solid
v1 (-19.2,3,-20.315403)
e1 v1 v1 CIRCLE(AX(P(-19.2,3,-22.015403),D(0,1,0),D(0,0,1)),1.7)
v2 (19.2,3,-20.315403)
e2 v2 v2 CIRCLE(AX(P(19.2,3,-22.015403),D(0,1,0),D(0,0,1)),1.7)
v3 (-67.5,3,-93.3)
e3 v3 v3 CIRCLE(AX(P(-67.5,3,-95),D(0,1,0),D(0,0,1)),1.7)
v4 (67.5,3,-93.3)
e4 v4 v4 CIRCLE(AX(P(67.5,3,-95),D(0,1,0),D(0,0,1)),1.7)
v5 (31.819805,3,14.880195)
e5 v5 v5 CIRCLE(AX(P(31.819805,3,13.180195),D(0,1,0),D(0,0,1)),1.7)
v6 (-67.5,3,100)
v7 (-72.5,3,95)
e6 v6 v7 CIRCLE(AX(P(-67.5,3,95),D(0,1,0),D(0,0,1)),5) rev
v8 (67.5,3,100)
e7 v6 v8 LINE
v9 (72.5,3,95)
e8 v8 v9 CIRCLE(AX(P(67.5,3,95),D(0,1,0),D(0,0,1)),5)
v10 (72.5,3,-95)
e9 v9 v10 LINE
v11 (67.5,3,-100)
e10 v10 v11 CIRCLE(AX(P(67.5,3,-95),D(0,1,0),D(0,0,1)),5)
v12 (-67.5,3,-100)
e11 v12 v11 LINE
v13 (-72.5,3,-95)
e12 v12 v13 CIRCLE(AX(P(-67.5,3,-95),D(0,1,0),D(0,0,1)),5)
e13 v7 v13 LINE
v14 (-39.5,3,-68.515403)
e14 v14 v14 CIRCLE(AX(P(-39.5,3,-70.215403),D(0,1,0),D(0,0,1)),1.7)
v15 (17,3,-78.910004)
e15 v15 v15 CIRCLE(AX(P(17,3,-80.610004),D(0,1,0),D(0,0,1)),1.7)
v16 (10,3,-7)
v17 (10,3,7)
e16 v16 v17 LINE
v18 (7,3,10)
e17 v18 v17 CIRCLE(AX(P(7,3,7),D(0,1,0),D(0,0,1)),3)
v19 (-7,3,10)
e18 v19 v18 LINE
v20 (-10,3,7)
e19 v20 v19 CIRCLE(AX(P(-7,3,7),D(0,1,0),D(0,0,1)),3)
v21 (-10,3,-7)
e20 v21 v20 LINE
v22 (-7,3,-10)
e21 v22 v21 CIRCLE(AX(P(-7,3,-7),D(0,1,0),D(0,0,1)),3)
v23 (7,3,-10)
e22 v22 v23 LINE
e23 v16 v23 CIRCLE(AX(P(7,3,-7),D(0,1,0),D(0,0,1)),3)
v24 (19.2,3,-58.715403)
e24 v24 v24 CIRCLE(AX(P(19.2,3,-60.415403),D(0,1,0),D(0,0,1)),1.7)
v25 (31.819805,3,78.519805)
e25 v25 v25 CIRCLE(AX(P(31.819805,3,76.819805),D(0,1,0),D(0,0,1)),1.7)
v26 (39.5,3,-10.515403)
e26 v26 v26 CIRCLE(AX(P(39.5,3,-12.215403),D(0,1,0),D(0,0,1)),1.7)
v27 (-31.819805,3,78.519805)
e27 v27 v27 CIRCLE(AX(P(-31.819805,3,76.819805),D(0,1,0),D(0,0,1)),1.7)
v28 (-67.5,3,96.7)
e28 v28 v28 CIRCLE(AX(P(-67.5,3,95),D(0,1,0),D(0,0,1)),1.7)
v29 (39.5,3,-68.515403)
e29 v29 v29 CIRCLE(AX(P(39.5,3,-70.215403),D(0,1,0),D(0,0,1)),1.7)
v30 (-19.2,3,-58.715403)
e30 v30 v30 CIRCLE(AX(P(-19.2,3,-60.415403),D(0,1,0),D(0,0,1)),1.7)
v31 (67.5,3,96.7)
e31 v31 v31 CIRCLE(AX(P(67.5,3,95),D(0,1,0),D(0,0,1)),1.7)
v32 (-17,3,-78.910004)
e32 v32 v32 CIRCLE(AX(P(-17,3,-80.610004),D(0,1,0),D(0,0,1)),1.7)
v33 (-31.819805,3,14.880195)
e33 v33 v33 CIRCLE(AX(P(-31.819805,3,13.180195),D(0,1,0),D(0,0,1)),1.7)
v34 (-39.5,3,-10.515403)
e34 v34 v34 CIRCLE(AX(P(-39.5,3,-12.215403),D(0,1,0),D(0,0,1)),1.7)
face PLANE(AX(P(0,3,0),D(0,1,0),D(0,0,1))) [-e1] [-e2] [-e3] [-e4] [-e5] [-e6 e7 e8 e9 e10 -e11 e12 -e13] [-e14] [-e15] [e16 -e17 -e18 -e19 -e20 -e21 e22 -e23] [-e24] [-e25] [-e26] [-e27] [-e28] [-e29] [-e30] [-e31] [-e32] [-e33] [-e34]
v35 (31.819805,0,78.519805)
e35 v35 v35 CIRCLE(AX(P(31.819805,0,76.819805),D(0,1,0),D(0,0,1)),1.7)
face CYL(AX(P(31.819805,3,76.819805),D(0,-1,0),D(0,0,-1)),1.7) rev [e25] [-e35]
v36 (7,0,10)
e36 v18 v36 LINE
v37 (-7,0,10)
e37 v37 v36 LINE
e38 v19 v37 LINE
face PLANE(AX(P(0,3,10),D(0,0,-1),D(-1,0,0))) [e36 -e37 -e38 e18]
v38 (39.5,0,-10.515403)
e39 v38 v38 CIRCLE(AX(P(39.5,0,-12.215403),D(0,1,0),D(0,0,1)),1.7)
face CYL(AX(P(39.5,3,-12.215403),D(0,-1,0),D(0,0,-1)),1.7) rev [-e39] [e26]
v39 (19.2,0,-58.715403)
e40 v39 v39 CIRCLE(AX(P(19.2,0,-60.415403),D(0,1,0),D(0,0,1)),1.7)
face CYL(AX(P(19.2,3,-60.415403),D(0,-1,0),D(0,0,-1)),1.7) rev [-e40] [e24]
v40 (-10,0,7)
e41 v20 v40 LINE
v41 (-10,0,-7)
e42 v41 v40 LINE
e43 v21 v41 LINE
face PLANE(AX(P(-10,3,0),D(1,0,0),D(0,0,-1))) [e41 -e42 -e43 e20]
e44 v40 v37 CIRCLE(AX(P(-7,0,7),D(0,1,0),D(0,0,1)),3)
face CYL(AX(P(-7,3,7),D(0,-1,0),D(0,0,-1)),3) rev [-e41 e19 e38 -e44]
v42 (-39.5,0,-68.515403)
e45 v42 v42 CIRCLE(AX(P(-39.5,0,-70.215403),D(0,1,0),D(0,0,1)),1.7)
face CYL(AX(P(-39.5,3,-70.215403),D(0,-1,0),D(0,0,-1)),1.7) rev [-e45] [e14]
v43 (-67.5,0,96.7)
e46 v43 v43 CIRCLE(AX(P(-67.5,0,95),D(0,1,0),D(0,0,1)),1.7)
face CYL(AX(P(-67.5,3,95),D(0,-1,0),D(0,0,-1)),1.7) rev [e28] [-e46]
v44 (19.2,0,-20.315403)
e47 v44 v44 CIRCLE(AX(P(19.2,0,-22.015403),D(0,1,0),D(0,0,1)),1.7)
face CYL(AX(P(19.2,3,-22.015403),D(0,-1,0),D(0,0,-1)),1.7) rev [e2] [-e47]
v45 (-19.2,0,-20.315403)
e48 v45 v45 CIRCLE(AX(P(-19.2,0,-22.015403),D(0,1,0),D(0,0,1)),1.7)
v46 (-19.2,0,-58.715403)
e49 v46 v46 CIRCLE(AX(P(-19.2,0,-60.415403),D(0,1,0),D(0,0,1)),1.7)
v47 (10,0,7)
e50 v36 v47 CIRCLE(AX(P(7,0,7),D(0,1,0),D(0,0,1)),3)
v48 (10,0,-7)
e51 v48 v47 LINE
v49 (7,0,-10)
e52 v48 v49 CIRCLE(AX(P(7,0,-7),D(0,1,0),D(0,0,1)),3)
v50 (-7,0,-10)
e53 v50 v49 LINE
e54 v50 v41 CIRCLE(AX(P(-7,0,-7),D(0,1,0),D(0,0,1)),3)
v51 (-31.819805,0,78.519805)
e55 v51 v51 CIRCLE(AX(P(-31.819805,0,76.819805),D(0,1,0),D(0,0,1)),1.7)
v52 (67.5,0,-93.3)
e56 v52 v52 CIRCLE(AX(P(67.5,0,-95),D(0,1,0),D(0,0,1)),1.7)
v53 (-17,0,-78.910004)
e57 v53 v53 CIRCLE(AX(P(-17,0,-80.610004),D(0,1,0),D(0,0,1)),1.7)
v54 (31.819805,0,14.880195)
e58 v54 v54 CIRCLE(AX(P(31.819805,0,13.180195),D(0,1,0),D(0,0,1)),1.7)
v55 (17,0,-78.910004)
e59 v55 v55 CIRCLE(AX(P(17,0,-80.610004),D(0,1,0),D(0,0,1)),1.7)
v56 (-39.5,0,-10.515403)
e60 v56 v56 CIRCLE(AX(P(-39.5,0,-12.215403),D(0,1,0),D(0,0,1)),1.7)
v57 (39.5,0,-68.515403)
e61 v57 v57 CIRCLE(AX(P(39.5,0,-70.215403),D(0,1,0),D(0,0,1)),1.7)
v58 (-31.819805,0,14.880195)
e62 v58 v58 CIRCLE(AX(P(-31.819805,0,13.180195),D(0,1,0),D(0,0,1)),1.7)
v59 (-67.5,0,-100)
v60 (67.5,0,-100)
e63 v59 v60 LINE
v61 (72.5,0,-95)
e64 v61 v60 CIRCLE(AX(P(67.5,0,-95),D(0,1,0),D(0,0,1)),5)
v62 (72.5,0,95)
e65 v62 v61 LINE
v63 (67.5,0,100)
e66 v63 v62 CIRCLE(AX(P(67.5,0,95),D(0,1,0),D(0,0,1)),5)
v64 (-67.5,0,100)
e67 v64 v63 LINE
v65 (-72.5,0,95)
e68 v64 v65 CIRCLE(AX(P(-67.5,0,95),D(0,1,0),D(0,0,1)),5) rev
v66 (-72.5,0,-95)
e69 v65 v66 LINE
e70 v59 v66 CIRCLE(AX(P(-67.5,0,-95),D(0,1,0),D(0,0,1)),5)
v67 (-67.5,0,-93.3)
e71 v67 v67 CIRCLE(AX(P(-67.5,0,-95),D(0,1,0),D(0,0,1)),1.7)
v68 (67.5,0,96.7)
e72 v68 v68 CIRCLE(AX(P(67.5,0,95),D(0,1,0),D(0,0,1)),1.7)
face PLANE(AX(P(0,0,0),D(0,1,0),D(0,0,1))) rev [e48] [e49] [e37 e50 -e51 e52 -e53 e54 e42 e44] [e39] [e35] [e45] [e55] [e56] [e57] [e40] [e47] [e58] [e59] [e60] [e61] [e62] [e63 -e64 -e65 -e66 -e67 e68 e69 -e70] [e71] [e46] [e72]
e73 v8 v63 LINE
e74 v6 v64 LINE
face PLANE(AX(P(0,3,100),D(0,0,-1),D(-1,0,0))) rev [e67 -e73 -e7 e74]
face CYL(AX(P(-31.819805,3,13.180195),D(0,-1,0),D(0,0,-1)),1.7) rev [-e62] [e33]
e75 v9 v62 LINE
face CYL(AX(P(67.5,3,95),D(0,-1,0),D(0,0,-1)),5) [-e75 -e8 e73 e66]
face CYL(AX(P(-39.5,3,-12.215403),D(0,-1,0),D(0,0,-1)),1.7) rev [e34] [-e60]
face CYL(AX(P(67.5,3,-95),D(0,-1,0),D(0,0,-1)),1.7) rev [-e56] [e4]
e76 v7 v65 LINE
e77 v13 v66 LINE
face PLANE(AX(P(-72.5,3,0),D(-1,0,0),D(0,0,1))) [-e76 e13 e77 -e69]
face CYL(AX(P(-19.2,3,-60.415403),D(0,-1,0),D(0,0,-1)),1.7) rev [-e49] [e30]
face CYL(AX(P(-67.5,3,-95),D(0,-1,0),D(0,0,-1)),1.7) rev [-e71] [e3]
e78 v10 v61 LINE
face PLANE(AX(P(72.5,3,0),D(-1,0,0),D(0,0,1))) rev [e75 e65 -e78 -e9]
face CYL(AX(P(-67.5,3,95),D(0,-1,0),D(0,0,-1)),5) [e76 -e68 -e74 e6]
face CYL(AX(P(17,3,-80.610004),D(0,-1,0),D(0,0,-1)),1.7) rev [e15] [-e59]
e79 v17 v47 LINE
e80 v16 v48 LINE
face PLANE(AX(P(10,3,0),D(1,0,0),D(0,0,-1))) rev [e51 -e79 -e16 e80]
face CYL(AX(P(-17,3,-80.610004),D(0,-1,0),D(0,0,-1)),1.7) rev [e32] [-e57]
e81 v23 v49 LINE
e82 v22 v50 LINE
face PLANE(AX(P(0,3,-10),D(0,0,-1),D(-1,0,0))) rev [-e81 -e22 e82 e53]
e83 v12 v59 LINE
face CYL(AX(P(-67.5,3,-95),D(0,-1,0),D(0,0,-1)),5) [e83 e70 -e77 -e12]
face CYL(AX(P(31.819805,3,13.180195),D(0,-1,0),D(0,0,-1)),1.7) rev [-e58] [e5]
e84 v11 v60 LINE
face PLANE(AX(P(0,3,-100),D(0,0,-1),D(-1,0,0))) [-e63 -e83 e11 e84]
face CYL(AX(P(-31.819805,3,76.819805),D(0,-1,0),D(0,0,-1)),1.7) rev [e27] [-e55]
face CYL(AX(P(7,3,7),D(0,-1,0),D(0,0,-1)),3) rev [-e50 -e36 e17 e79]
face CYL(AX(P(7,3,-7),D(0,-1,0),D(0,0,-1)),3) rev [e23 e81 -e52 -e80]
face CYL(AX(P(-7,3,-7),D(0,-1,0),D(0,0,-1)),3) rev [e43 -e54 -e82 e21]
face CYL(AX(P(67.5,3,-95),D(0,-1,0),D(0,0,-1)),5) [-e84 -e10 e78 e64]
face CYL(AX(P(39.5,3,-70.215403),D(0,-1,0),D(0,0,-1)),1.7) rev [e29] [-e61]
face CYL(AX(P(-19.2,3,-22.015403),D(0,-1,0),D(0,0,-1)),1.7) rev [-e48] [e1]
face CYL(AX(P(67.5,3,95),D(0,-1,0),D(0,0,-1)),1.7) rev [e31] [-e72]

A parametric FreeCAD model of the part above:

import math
import FreeCAD as App
import Part
import Sketcher

V = App.Vector
Q = App.Units.Quantity

doc = App.newDocument("Part")
params = doc.addObject("Spreadsheet::Sheet", "Params")
for row, (alias, value) in enumerate([
    ("sketch1_radius", "5 mm"),
    ("sketch1_radius2", "3 mm"),
    ("sketch1_diameter", "3.4 mm"),
    ("sketch1_width", "135 mm"),
    ("sketch1_width2", "14 mm"),
    ("pad1_length", "3 mm"),
], start=1):
    params.set(f"A{row}", alias)
    params.set(f"B{row}", "=" + value)
    params.setAlias(f"B{row}", alias)

body = doc.addObject("PartDesign::Body", "Body")

# Sketch on XZ plane
sketch1 = body.newObject("Sketcher::SketchObject", "Sketch")
sketch1.AttachmentSupport = (doc.getObject("XZ_Plane"), [""])
sketch1.MapMode = "FlatFace"
sketch1.addGeometry(Part.LineSegment(V(-67.5, 100, 0), V(67.5, 100, 0)), False)
sketch1.addGeometry(Part.ArcOfCircle(Part.Circle(V(67.5, 95, 0), V(0, 0, 1), 5), math.radians(0), math.radians(90)), False)
sketch1.addGeometry(Part.LineSegment(V(72.5, 95, 0), V(72.5, -95, 0)), False)
sketch1.addGeometry(Part.ArcOfCircle(Part.Circle(V(67.5, -95, 0), V(0, 0, 1), 5), math.radians(-90), math.radians(0)), False)
sketch1.addGeometry(Part.LineSegment(V(67.5, -100, 0), V(-67.5, -100, 0)), False)
sketch1.addGeometry(Part.ArcOfCircle(Part.Circle(V(-67.5, -95, 0), V(0, 0, 1), 5), math.radians(180), math.radians(270)), False)
sketch1.addGeometry(Part.LineSegment(V(-72.5, -95, 0), V(-72.5, 95, 0)), False)
sketch1.addGeometry(Part.ArcOfCircle(Part.Circle(V(-67.5, 95, 0), V(0, 0, 1), 5), math.radians(90), math.radians(180)), False)
sketch1.addGeometry(Part.Circle(V(-67.5, 95, 0), V(0, 0, 1), 1.7), False)
sketch1.addGeometry(Part.Circle(V(-31.8, 76.8, 0), V(0, 0, 1), 1.7), False)
sketch1.addGeometry(Part.Circle(V(-31.8, 13.2, 0), V(0, 0, 1), 1.7), False)
sketch1.addGeometry(Part.Circle(V(31.8, 76.8, 0), V(0, 0, 1), 1.7), False)
sketch1.addGeometry(Part.Circle(V(67.5, 95, 0), V(0, 0, 1), 1.7), False)
sketch1.addGeometry(Part.Circle(V(31.8, 13.2, 0), V(0, 0, 1), 1.7), False)
sketch1.addGeometry(Part.Circle(V(-39.5, -12.2, 0), V(0, 0, 1), 1.7), False)
sketch1.addGeometry(Part.Circle(V(-19.2, -22, 0), V(0, 0, 1), 1.7), False)
sketch1.addGeometry(Part.Circle(V(-39.5, -70.2, 0), V(0, 0, 1), 1.7), False)
sketch1.addGeometry(Part.Circle(V(-67.5, -95, 0), V(0, 0, 1), 1.7), False)
sketch1.addGeometry(Part.Circle(V(-19.2, -60.4, 0), V(0, 0, 1), 1.7), False)
sketch1.addGeometry(Part.Circle(V(-17, -80.6, 0), V(0, 0, 1), 1.7), False)
sketch1.addGeometry(Part.ArcOfCircle(Part.Circle(V(-7, -7, 0), V(0, 0, 1), 3), math.radians(180), math.radians(270)), False)
sketch1.addGeometry(Part.LineSegment(V(-7, -10, 0), V(7, -10, 0)), False)
sketch1.addGeometry(Part.ArcOfCircle(Part.Circle(V(7, -7, 0), V(0, 0, 1), 3), math.radians(-90), math.radians(0)), False)
sketch1.addGeometry(Part.LineSegment(V(10, -7, 0), V(10, 7, 0)), False)
sketch1.addGeometry(Part.ArcOfCircle(Part.Circle(V(7, 7, 0), V(0, 0, 1), 3), math.radians(0), math.radians(90)), False)
sketch1.addGeometry(Part.LineSegment(V(7, 10, 0), V(-7, 10, 0)), False)
sketch1.addGeometry(Part.ArcOfCircle(Part.Circle(V(-7, 7, 0), V(0, 0, 1), 3), math.radians(90), math.radians(180)), False)
sketch1.addGeometry(Part.LineSegment(V(-10, 7, 0), V(-10, -7, 0)), False)
sketch1.addGeometry(Part.Circle(V(19.2, -22, 0), V(0, 0, 1), 1.7), False)
sketch1.addGeometry(Part.Circle(V(39.5, -12.2, 0), V(0, 0, 1), 1.7), False)
sketch1.addGeometry(Part.Circle(V(19.2, -60.4, 0), V(0, 0, 1), 1.7), False)
sketch1.addGeometry(Part.Circle(V(17, -80.6, 0), V(0, 0, 1), 1.7), False)
sketch1.addGeometry(Part.Circle(V(39.5, -70.2, 0), V(0, 0, 1), 1.7), False)
sketch1.addGeometry(Part.Circle(V(67.5, -95, 0), V(0, 0, 1), 1.7), False)
sketch1.addConstraint(Sketcher.Constraint("Tangent", 0, 2, 1, 2))
sketch1.addConstraint(Sketcher.Constraint("Tangent", 1, 1, 2, 1))
sketch1.addConstraint(Sketcher.Constraint("Tangent", 2, 2, 3, 2))
sketch1.addConstraint(Sketcher.Constraint("Tangent", 3, 1, 4, 1))
sketch1.addConstraint(Sketcher.Constraint("Tangent", 4, 2, 5, 2))
sketch1.addConstraint(Sketcher.Constraint("Tangent", 5, 1, 6, 1))
sketch1.addConstraint(Sketcher.Constraint("Tangent", 6, 2, 7, 2))
sketch1.addConstraint(Sketcher.Constraint("Tangent", 7, 1, 0, 1))
sketch1.addConstraint(Sketcher.Constraint("Tangent", 20, 2, 21, 1))
sketch1.addConstraint(Sketcher.Constraint("Tangent", 21, 2, 22, 1))
sketch1.addConstraint(Sketcher.Constraint("Tangent", 22, 2, 23, 1))
sketch1.addConstraint(Sketcher.Constraint("Tangent", 23, 2, 24, 1))
sketch1.addConstraint(Sketcher.Constraint("Tangent", 24, 2, 25, 1))
sketch1.addConstraint(Sketcher.Constraint("Tangent", 25, 2, 26, 1))
sketch1.addConstraint(Sketcher.Constraint("Tangent", 26, 2, 27, 1))
sketch1.addConstraint(Sketcher.Constraint("Tangent", 27, 2, 20, 1))
sketch1.addConstraint(Sketcher.Constraint("Horizontal", 0))
sketch1.addConstraint(Sketcher.Constraint("Vertical", 2))
sketch1.addConstraint(Sketcher.Constraint("Horizontal", 4))
sketch1.addConstraint(Sketcher.Constraint("Vertical", 6))
sketch1.addConstraint(Sketcher.Constraint("Horizontal", 21))
sketch1.addConstraint(Sketcher.Constraint("Vertical", 23))
sketch1.addConstraint(Sketcher.Constraint("Horizontal", 25))
sketch1.addConstraint(Sketcher.Constraint("Vertical", 27))
sketch1.addConstraint(Sketcher.Constraint("Coincident", 8, 3, 7, 3))
sketch1.addConstraint(Sketcher.Constraint("Coincident", 12, 3, 1, 3))
sketch1.addConstraint(Sketcher.Constraint("Coincident", 17, 3, 5, 3))
sketch1.addConstraint(Sketcher.Constraint("Coincident", 33, 3, 3, 3))
sketch1.addConstraint(Sketcher.Constraint("Equal", 1, 3))
sketch1.addConstraint(Sketcher.Constraint("Equal", 3, 5))
sketch1.addConstraint(Sketcher.Constraint("Equal", 5, 7))
sketch1.addConstraint(Sketcher.Constraint("Equal", 8, 9))
sketch1.addConstraint(Sketcher.Constraint("Equal", 9, 10))
sketch1.addConstraint(Sketcher.Constraint("Equal", 10, 11))
sketch1.addConstraint(Sketcher.Constraint("Equal", 11, 12))
sketch1.addConstraint(Sketcher.Constraint("Equal", 12, 13))
sketch1.addConstraint(Sketcher.Constraint("Equal", 13, 14))
sketch1.addConstraint(Sketcher.Constraint("Equal", 14, 15))
sketch1.addConstraint(Sketcher.Constraint("Equal", 15, 16))
sketch1.addConstraint(Sketcher.Constraint("Equal", 16, 17))
sketch1.addConstraint(Sketcher.Constraint("Equal", 17, 18))
sketch1.addConstraint(Sketcher.Constraint("Equal", 18, 19))
sketch1.addConstraint(Sketcher.Constraint("Equal", 20, 22))
sketch1.addConstraint(Sketcher.Constraint("Equal", 22, 24))
sketch1.addConstraint(Sketcher.Constraint("Equal", 24, 26))
sketch1.addConstraint(Sketcher.Constraint("Equal", 19, 28))
sketch1.addConstraint(Sketcher.Constraint("Equal", 28, 29))
sketch1.addConstraint(Sketcher.Constraint("Equal", 29, 30))
sketch1.addConstraint(Sketcher.Constraint("Equal", 30, 31))
sketch1.addConstraint(Sketcher.Constraint("Equal", 31, 32))
sketch1.addConstraint(Sketcher.Constraint("Equal", 32, 33))
sketch1.addConstraint(Sketcher.Constraint("Symmetric", 1, 3, 5, 3, -1, 1))
sketch1.addConstraint(Sketcher.Constraint("Symmetric", 20, 3, 24, 3, -1, 1))
sketch1.addConstraint(Sketcher.Constraint("Symmetric", 9, 3, 11, 3, -2))
sketch1.addConstraint(Sketcher.Constraint("Symmetric", 10, 3, 13, 3, -2))
sketch1.addConstraint(Sketcher.Constraint("Symmetric", 15, 3, 28, 3, -2))
sketch1.addConstraint(Sketcher.Constraint("Symmetric", 14, 3, 29, 3, -2))
sketch1.addConstraint(Sketcher.Constraint("Symmetric", 18, 3, 30, 3, -2))
sketch1.addConstraint(Sketcher.Constraint("Symmetric", 19, 3, 31, 3, -2))
sketch1.addConstraint(Sketcher.Constraint("Symmetric", 16, 3, 32, 3, -2))
sketch1.addConstraint(Sketcher.Constraint("Vertical", 9, 3, 10, 3))
sketch1.addConstraint(Sketcher.Constraint("Vertical", 14, 3, 16, 3))
sketch1.addConstraint(Sketcher.Constraint("Vertical", 15, 3, 18, 3))
sketch1.addConstraint(Sketcher.Constraint("Equal", 25, 23))
sketch1.addConstraint(Sketcher.Constraint("Radius", 1, Q("5 mm")))
sketch1.addConstraint(Sketcher.Constraint("Radius", 20, Q("3 mm")))
sketch1.addConstraint(Sketcher.Constraint("Diameter", 8, Q("3.4 mm")))
sketch1.addConstraint(Sketcher.Constraint("DistanceX", 0, 1, 0, 2, Q("135 mm")))
sketch1.addConstraint(Sketcher.Constraint("DistanceX", 21, 1, 21, 2, Q("14 mm")))
sketch1.addConstraint(Sketcher.Constraint("DistanceY", 2, 2, 2, 1, Q("190 mm")))
sketch1.addConstraint(Sketcher.Constraint("DistanceX", 19, 3, -1, 1, Q("17 mm")))
sketch1.addConstraint(Sketcher.Constraint("DistanceX", 5, 3, 14, 3, Q("28 mm")))
sketch1.addConstraint(Sketcher.Constraint("DistanceY", 16, 3, 14, 3, Q("58 mm")))
sketch1.addConstraint(Sketcher.Constraint("DistanceX", 15, 3, -1, 1, Q("19.2 mm")))
sketch1.addConstraint(Sketcher.Constraint("DistanceY", 15, 3, 14, 3, Q("9.8 mm")))
sketch1.addConstraint(Sketcher.Constraint("DistanceY", 16, 3, 18, 3, Q("9.8 mm")))
sketch1.addConstraint(Sketcher.Constraint("DistanceY", 19, 3, 18, 3, Q("20.194601 mm")))
sketch1.addConstraint(Sketcher.Constraint("DistanceY", 10, 3, 9, 3, Q("63.63961 mm")))
sketch1.addConstraint(Sketcher.Constraint("DistanceX", 9, 3, 11, 3, Q("63.63961 mm")))
sketch1.addConstraint(Sketcher.Constraint("DistanceY", 14, 3, 9, 3, Q("89.035208 mm")))
sketch1.addConstraint(Sketcher.Constraint("DistanceY", -1, 1, 9, 3, Q("76.819805 mm")))
sketch1.setExpression("Constraints[64]", "Params.sketch1_radius")
sketch1.setExpression("Constraints[65]", "Params.sketch1_radius2")
sketch1.setExpression("Constraints[66]", "Params.sketch1_diameter")
sketch1.setExpression("Constraints[67]", "Params.sketch1_width")
sketch1.setExpression("Constraints[68]", "Params.sketch1_width2")
pad1 = body.newObject("PartDesign::Pad", "Pad")
pad1.Profile = sketch1
pad1.setExpression("Length", "Params.pad1_length")
pad1.Reversed = True

doc.recompute()
